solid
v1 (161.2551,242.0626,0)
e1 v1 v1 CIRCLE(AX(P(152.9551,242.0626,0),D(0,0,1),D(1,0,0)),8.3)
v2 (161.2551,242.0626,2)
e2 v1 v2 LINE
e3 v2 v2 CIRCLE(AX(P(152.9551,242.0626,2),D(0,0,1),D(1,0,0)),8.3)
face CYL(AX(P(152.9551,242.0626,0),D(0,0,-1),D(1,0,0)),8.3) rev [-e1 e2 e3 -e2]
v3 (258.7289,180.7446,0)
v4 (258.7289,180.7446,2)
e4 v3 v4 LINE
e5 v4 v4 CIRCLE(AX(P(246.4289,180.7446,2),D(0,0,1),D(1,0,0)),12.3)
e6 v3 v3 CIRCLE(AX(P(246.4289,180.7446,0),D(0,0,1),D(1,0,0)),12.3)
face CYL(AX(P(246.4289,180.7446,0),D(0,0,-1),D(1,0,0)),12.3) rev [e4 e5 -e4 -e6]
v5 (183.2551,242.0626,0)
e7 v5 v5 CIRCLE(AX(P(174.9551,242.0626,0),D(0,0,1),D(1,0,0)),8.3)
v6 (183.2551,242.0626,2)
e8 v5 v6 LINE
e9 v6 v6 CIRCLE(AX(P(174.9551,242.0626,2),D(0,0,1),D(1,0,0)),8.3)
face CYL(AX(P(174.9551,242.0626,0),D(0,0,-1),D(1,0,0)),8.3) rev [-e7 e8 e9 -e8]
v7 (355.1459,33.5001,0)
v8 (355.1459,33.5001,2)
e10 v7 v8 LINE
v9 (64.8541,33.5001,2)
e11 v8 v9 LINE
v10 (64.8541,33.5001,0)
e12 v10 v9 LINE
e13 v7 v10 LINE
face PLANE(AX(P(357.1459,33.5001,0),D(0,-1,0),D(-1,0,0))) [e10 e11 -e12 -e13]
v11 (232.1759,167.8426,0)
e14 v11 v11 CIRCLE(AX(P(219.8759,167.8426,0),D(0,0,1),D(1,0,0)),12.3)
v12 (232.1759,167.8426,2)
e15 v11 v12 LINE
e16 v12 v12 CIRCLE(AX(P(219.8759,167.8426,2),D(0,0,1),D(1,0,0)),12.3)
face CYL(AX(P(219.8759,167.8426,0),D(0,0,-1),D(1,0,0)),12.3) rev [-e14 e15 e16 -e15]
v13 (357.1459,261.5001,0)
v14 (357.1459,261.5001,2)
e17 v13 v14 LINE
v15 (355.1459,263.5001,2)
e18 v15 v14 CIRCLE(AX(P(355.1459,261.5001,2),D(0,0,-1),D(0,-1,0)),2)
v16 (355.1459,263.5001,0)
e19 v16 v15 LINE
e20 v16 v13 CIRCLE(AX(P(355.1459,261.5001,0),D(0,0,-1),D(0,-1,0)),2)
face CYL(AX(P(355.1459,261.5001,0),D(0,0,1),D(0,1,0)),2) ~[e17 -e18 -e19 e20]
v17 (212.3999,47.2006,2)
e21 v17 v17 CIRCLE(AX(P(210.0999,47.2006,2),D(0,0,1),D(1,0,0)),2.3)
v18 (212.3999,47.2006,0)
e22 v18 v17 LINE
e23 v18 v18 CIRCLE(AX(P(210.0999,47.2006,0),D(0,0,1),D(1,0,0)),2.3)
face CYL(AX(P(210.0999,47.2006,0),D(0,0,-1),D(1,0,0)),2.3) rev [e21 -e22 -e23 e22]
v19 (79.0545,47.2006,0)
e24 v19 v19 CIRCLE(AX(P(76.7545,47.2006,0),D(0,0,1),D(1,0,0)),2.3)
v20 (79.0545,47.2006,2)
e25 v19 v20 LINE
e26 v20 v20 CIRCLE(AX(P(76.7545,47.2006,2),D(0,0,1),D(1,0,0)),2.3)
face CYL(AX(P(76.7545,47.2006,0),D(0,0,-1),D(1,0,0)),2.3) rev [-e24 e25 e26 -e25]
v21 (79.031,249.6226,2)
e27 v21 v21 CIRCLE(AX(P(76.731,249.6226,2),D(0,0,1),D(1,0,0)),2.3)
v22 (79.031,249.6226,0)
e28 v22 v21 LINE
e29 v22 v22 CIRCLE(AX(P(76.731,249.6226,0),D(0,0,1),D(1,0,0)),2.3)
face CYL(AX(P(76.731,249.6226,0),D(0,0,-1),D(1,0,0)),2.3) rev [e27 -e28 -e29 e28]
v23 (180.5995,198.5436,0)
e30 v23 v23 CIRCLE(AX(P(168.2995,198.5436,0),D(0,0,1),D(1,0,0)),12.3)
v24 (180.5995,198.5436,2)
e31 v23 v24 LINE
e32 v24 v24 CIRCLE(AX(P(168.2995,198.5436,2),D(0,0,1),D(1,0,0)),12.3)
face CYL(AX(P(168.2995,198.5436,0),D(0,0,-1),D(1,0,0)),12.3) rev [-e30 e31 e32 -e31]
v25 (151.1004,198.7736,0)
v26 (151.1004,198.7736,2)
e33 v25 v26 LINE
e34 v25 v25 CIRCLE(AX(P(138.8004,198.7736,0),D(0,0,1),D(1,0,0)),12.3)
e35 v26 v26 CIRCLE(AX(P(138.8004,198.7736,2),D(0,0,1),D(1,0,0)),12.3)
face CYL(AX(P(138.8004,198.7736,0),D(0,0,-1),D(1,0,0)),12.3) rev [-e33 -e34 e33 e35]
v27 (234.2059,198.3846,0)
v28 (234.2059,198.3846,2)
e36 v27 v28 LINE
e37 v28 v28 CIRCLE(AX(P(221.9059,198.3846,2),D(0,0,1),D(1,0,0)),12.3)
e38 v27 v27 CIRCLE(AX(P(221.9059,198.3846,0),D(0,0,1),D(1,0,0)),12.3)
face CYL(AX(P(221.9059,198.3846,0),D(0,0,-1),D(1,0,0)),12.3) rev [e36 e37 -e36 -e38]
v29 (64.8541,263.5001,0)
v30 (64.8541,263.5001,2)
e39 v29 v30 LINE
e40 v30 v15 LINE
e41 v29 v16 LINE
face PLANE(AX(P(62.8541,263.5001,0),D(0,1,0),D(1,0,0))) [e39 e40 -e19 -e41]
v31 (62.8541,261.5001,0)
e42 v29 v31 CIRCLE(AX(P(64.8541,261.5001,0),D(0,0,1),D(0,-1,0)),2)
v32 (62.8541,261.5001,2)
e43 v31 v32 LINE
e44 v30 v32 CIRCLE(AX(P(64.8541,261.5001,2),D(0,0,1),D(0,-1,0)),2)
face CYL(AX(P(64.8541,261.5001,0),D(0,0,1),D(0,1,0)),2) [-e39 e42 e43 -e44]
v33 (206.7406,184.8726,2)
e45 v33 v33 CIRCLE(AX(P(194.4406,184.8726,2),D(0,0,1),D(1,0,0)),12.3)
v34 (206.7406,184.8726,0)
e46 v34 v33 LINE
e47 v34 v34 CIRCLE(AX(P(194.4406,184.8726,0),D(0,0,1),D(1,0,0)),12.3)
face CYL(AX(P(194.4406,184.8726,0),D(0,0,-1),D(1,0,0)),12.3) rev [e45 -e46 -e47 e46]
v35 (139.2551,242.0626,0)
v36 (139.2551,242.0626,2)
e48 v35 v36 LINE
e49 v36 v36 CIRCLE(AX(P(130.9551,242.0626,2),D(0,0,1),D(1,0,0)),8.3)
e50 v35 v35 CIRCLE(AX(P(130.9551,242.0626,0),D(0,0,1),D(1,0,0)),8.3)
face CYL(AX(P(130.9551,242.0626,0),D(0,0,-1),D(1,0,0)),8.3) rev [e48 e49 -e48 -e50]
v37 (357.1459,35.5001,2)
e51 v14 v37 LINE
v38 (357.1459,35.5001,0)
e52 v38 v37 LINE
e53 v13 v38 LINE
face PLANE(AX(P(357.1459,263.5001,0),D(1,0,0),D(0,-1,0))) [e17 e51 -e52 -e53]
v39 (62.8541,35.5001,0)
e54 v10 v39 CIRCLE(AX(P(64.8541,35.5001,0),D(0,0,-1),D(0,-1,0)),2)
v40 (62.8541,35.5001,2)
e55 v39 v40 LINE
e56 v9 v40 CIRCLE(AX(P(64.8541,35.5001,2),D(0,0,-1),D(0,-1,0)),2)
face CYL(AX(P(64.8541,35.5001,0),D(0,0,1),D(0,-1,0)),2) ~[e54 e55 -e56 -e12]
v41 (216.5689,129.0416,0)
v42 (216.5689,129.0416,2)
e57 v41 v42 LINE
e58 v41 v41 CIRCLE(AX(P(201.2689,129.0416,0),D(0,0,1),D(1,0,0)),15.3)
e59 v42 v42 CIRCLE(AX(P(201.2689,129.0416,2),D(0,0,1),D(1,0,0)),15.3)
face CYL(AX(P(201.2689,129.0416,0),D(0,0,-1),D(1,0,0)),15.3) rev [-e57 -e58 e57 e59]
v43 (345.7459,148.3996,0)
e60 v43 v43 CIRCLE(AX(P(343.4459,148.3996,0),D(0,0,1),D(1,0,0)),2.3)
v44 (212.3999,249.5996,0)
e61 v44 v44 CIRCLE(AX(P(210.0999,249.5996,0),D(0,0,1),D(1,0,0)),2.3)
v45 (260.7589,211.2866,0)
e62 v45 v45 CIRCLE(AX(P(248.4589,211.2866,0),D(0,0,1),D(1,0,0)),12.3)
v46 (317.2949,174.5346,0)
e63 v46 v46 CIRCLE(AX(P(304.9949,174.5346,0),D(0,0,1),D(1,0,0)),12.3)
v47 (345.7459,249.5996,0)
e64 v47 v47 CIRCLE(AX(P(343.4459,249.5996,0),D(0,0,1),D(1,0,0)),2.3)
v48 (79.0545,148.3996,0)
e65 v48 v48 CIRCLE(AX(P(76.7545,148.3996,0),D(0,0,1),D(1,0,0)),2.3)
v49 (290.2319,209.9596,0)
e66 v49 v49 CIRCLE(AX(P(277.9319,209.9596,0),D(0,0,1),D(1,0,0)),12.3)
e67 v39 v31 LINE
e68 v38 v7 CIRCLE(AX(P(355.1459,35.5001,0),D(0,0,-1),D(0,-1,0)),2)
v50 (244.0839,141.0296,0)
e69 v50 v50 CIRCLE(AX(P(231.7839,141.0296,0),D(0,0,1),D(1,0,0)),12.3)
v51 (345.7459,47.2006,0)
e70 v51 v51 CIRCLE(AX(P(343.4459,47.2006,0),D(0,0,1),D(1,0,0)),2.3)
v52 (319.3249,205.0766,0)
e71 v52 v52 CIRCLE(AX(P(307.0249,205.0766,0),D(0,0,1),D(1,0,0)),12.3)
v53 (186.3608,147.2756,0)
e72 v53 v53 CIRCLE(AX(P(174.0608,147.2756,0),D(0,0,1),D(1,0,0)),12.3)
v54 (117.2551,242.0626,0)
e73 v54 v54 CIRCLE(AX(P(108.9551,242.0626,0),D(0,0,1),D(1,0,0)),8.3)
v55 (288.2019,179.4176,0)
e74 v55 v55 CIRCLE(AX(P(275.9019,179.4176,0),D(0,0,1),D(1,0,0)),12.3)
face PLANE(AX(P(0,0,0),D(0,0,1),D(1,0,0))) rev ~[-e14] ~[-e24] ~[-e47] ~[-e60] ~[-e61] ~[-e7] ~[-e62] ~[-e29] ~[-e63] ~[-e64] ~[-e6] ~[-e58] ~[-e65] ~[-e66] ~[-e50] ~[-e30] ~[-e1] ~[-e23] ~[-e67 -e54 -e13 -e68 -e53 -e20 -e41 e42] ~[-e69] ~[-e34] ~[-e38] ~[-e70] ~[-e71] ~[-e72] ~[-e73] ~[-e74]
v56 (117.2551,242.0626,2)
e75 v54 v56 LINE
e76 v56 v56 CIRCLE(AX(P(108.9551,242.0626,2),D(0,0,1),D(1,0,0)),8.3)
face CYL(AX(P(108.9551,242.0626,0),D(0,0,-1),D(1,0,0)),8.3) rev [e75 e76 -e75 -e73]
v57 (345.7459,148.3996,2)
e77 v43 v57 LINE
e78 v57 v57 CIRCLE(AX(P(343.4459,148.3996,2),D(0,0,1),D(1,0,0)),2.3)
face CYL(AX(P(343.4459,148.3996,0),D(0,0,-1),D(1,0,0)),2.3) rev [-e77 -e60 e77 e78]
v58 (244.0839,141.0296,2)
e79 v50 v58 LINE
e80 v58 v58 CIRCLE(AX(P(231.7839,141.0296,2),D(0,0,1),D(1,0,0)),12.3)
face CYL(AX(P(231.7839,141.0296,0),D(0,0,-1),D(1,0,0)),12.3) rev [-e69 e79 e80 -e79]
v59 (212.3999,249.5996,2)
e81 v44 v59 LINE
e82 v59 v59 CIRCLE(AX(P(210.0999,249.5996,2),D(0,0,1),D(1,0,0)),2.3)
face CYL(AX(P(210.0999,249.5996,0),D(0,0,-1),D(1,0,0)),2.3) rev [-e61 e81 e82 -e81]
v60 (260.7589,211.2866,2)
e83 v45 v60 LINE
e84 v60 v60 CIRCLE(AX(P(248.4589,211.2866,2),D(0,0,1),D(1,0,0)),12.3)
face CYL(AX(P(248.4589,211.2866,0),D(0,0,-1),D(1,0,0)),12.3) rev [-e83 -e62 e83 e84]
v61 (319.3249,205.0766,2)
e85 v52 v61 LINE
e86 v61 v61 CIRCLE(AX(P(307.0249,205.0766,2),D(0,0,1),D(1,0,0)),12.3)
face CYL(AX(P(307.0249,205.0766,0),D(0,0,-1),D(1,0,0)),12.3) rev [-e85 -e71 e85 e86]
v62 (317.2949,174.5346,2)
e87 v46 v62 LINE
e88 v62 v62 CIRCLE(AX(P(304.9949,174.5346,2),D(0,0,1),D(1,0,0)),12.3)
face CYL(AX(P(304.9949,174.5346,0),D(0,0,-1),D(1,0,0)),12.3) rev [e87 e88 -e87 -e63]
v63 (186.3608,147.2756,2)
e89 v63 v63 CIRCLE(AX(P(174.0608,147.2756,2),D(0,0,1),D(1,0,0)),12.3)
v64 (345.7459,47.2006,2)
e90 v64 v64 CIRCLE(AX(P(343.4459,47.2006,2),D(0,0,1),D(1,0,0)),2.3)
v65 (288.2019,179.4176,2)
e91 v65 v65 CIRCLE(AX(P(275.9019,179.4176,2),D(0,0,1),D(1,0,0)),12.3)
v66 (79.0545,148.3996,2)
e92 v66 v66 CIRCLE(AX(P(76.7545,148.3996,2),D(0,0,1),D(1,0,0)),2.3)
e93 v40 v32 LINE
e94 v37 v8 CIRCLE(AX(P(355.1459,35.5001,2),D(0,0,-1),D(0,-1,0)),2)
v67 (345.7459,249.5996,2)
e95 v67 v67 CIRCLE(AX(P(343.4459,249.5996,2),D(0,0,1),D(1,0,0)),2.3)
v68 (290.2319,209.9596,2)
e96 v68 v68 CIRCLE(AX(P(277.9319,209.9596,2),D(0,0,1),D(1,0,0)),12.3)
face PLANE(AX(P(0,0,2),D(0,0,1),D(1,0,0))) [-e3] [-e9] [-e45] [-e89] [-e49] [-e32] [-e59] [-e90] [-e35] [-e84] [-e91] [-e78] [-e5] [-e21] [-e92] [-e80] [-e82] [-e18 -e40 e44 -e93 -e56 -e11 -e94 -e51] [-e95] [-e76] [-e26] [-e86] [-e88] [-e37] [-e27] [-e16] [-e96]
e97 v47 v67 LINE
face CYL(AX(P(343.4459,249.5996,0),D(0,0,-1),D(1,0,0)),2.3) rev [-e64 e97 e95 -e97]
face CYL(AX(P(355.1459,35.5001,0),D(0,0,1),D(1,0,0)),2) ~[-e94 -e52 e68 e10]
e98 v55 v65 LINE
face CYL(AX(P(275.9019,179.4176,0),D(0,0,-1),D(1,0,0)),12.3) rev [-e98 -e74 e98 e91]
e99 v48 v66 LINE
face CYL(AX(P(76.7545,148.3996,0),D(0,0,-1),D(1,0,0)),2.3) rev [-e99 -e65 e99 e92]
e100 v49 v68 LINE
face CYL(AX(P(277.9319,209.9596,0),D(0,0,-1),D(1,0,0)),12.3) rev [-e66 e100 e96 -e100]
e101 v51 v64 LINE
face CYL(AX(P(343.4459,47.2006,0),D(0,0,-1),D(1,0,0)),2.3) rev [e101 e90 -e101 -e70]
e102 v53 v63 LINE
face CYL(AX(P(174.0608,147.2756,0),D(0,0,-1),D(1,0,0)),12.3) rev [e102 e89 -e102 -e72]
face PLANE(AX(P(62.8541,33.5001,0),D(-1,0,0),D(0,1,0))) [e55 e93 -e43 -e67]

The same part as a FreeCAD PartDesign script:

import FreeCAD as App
import Part
import Sketcher
from FreeCAD import Vector


def edges_at(feature, points):
    """Names of the edges that pass closest to the given points."""
    edges = feature.Shape.Edges
    near = lambda p: min(range(len(edges)), key=lambda i: edges[i].distToShape(Part.Vertex(*p))[0])
    return sorted({f"Edge{near(p) + 1}" for p in points})


def add_polygon(sketch, points):
    """Adds a closed chain of lines whose ends are joined by coincident constraints."""
    first, n = sketch.GeometryCount, len(points)
    for a, b in zip(points, points[1:] + points[:1]):
        sketch.addGeometry(Part.LineSegment(App.Vector(*a, 0), App.Vector(*b, 0)), False)
    for i in range(n):
        sketch.addConstraint(Sketcher.Constraint("Coincident", first + i, 2, first + (i + 1) % n, 1))

doc = App.newDocument("Part")
body = doc.addObject("PartDesign::Body", "Body")

# Sketch on XY plane
sketch1 = body.newObject("Sketcher::SketchObject", "Sketch")
sketch1.AttachmentSupport = (doc.getObject("XY_Plane"), [""])
sketch1.MapMode = "FlatFace"
add_polygon(sketch1, [(357.1, 263.5), (62.9, 263.5), (62.9, 33.5), (357.1, 33.5)])  # lines 0-3
sketch1.addGeometry(Part.Circle(Vector(76.8, 47.2, 0), Vector(0, 0, 1), 2.3), False)  # 4
sketch1.addGeometry(Part.Circle(Vector(76.8, 148.4, 0), Vector(0, 0, 1), 2.3), False)  # 5
sketch1.addGeometry(Part.Circle(Vector(201.3, 129, 0), Vector(0, 0, 1), 15.3), False)  # 6
sketch1.addGeometry(Part.Circle(Vector(174.1, 147.3, 0), Vector(0, 0, 1), 12.3), False)  # 7
sketch1.addGeometry(Part.Circle(Vector(210.1, 47.2, 0), Vector(0, 0, 1), 2.3), False)  # 8
sketch1.addGeometry(Part.Circle(Vector(343.4, 47.2, 0), Vector(0, 0, 1), 2.3), False)  # 9
sketch1.addGeometry(Part.Circle(Vector(231.8, 141, 0), Vector(0, 0, 1), 12.3), False)  # 10
sketch1.addGeometry(Part.Circle(Vector(343.4, 148.4, 0), Vector(0, 0, 1), 2.3), False)  # 11
sketch1.addGeometry(Part.Circle(Vector(138.8, 198.8, 0), Vector(0, 0, 1), 12.3), False)  # 12
sketch1.addGeometry(Part.Circle(Vector(168.3, 198.5, 0), Vector(0, 0, 1), 12.3), False)  # 13
sketch1.addGeometry(Part.Circle(Vector(194.4, 184.9, 0), Vector(0, 0, 1), 12.3), False)  # 14
sketch1.addGeometry(Part.Circle(Vector(76.7, 249.6, 0), Vector(0, 0, 1), 2.3), False)  # 15
sketch1.addGeometry(Part.Circle(Vector(109, 242.1, 0), Vector(0, 0, 1), 8.3), False)  # 16
sketch1.addGeometry(Part.Circle(Vector(131, 242.1, 0), Vector(0, 0, 1), 8.3), False)  # 17
sketch1.addGeometry(Part.Circle(Vector(153, 242.1, 0), Vector(0, 0, 1), 8.3), False)  # 18
sketch1.addGeometry(Part.Circle(Vector(175, 242.1, 0), Vector(0, 0, 1), 8.3), False)  # 19
sketch1.addGeometry(Part.Circle(Vector(219.9, 167.8, 0), Vector(0, 0, 1), 12.3), False)  # 20
sketch1.addGeometry(Part.Circle(Vector(246.4, 180.7, 0), Vector(0, 0, 1), 12.3), False)  # 21
sketch1.addGeometry(Part.Circle(Vector(221.9, 198.4, 0), Vector(0, 0, 1), 12.3), False)  # 22
sketch1.addGeometry(Part.Circle(Vector(275.9, 179.4, 0), Vector(0, 0, 1), 12.3), False)  # 23
sketch1.addGeometry(Part.Circle(Vector(305, 174.5, 0), Vector(0, 0, 1), 12.3), False)  # 24
sketch1.addGeometry(Part.Circle(Vector(307, 205.1, 0), Vector(0, 0, 1), 12.3), False)  # 25
sketch1.addGeometry(Part.Circle(Vector(248.5, 211.3, 0), Vector(0, 0, 1), 12.3), False)  # 26
sketch1.addGeometry(Part.Circle(Vector(277.9, 210, 0), Vector(0, 0, 1), 12.3), False)  # 27
sketch1.addGeometry(Part.Circle(Vector(210.1, 249.6, 0), Vector(0, 0, 1), 2.3), False)  # 28
sketch1.addGeometry(Part.Circle(Vector(343.4, 249.6, 0), Vector(0, 0, 1), 2.3), False)  # 29
sketch1.addConstraint([
    Sketcher.Constraint("Horizontal", 0),
    Sketcher.Constraint("Vertical", 1),
    Sketcher.Constraint("Horizontal", 2),
    Sketcher.Constraint("Vertical", 3),
    Sketcher.Constraint("Equal", 4, 5),
    Sketcher.Constraint("Equal", 5, 8),
    Sketcher.Constraint("Equal", 8, 9),
    Sketcher.Constraint("Equal", 7, 10),
    Sketcher.Constraint("Equal", 9, 11),
    Sketcher.Constraint("Equal", 10, 12),
    Sketcher.Constraint("Equal", 12, 13),
    Sketcher.Constraint("Equal", 13, 14),
    Sketcher.Constraint("Equal", 11, 15),
    Sketcher.Constraint("Equal", 16, 17),
    Sketcher.Constraint("Equal", 17, 18),
    Sketcher.Constraint("Equal", 18, 19),
    Sketcher.Constraint("Equal", 14, 20),
    Sketcher.Constraint("Equal", 20, 21),
    Sketcher.Constraint("Equal", 21, 22),
    Sketcher.Constraint("Equal", 22, 23),
    Sketcher.Constraint("Equal", 23, 24),
    Sketcher.Constraint("Equal", 24, 25),
    Sketcher.Constraint("Equal", 25, 26),
    Sketcher.Constraint("Equal", 26, 27),
    Sketcher.Constraint("Equal", 15, 28),
    Sketcher.Constraint("Equal", 28, 29),
    Sketcher.Constraint("Horizontal", 4, 3, 8, 3),
    Sketcher.Constraint("Horizontal", 8, 3, 9, 3),
    Sketcher.Constraint("Horizontal", 5, 3, 11, 3),
    Sketcher.Constraint("Horizontal", 16, 3, 17, 3),
    Sketcher.Constraint("Horizontal", 17, 3, 18, 3),
    Sketcher.Constraint("Horizontal", 18, 3, 19, 3),
    Sketcher.Constraint("Horizontal", 28, 3, 29, 3),
    Sketcher.Constraint("Vertical", 4, 3, 5, 3),
    Sketcher.Constraint("Vertical", 9, 3, 11, 3),
    Sketcher.Constraint("Vertical", 8, 3, 28, 3),
    Sketcher.Constraint("Vertical", 11, 3, 29, 3),
    Sketcher.Constraint("Diameter", 4, 4.6),
    Sketcher.Constraint("Diameter", 6, 30.6),
    Sketcher.Constraint("Diameter", 7, 24.6),
    Sketcher.Constraint("Diameter", 16, 16.6),
    Sketcher.Constraint("DistanceY", 1, 2, 1, 1, 230.0),
    Sketcher.Constraint("DistanceX", 16, 3, 17, 3, 22.0),
    Sketcher.Constraint("DistanceX", 17, 3, 18, 3, 22.0),
    Sketcher.Constraint("DistanceX", 18, 3, 19, 3, 22.0),
    Sketcher.Constraint("DistanceX", -1, 1, 8, 3, 210.1),
    Sketcher.Constraint("DistanceY", -1, 1, 0, 2, 263.5),
    Sketcher.Constraint("DistanceY", 11, 3, 29, 3, 101.2),
    Sketcher.Constraint("DistanceX", 9, 3, 2, 2, 13.7),
    Sketcher.Constraint("DistanceY", 10, 3, 5, 3, 7.37),
    Sketcher.Constraint("DistanceY", 13, 3, 12, 3, 0.23),
    Sketcher.Constraint("DistanceY", 14, 3, 15, 3, 64.75),
    Sketcher.Constraint("DistanceY", 16, 3, 15, 3, 7.56),
    Sketcher.Constraint("DistanceY", 20, 3, 14, 3, 17.03),
    Sketcher.Constraint("DistanceX", 6, 3, 21, 3, 45.16),
    Sketcher.Constraint("DistanceY", 21, 3, 22, 3, 17.64),
    Sketcher.Constraint("DistanceX", 20, 3, 22, 3, 2.03),
    Sketcher.Constraint("DistanceY", 24, 3, 21, 3, 6.21),
    Sketcher.Constraint("DistanceX", 24, 3, 25, 3, 2.03),
    Sketcher.Constraint("DistanceX", 21, 3, 26, 3, 2.03),
    Sketcher.Constraint("DistanceY", 25, 3, 26, 3, 6.21),
    Sketcher.Constraint("DistanceX", 23, 3, 27, 3, 2.03),
    Sketcher.Constraint("DistanceY", 27, 3, 29, 3, 39.64),
    Sketcher.Constraint("DistanceX", 0, 2, 0, 1, 294.2918),
    Sketcher.Constraint("DistanceX", -1, 1, 6, 3, 201.269),
    Sketcher.Constraint("DistanceX", -1, 1, 9, 3, 343.446),
    Sketcher.Constraint("DistanceX", -1, 1, 10, 3, 231.784),
    Sketcher.Constraint("DistanceX", -1, 1, 15, 3, 76.731),
    Sketcher.Constraint("DistanceX", -1, 1, 16, 3, 108.955),
    Sketcher.Constraint("DistanceX", -1, 1, 20, 3, 219.876),
    Sketcher.Constraint("DistanceX", -1, 1, 23, 3, 275.902),
    Sketcher.Constraint("DistanceX", -1, 1, 24, 3, 304.995),
    Sketcher.Constraint("DistanceY", 4, 3, 5, 3, 101.199),
    Sketcher.Constraint("DistanceY", 6, 3, 5, 3, 19.358),
    Sketcher.Constraint("DistanceX", 7, 3, 6, 3, 27.208),
    Sketcher.Constraint("DistanceY", 6, 3, 7, 3, 18.234),
    Sketcher.Constraint("DistanceY", 7, 3, 12, 3, 51.498),
    Sketcher.Constraint("DistanceX", 5, 3, 12, 3, 62.046),
    Sketcher.Constraint("DistanceX", 12, 3, 13, 3, 29.499),
    Sketcher.Constraint("DistanceX", 13, 3, 14, 3, 26.141),
    Sketcher.Constraint("DistanceY", 14, 3, 13, 3, 13.671),
    Sketcher.Constraint("DistanceY", 20, 3, 21, 3, 12.902),
    Sketcher.Constraint("DistanceY", 23, 3, 21, 3, 1.327),
    Sketcher.Constraint("DistanceY", 24, 3, 25, 3, 30.542),
    Sketcher.Constraint("DistanceX", -1, 1, 4, 3, 76.7545),
    Sketcher.Constraint("DistanceY", -1, 1, 4, 3, 47.2006),
])
pad1 = body.newObject("PartDesign::Pad", "Pad")
pad1.Profile = sketch1
pad1.Length = 2
doc.recompute()

fillet = body.newObject("PartDesign::Fillet", "Fillet")
fillet.Base = (pad1, edges_at(pad1, [
    (62.854, 33.5, 1),
    (62.854, 263.5, 1),
    (357.146, 33.5, 1),
    (357.146, 263.5, 1),
]))
fillet.Radius = 2

doc.recompute()
